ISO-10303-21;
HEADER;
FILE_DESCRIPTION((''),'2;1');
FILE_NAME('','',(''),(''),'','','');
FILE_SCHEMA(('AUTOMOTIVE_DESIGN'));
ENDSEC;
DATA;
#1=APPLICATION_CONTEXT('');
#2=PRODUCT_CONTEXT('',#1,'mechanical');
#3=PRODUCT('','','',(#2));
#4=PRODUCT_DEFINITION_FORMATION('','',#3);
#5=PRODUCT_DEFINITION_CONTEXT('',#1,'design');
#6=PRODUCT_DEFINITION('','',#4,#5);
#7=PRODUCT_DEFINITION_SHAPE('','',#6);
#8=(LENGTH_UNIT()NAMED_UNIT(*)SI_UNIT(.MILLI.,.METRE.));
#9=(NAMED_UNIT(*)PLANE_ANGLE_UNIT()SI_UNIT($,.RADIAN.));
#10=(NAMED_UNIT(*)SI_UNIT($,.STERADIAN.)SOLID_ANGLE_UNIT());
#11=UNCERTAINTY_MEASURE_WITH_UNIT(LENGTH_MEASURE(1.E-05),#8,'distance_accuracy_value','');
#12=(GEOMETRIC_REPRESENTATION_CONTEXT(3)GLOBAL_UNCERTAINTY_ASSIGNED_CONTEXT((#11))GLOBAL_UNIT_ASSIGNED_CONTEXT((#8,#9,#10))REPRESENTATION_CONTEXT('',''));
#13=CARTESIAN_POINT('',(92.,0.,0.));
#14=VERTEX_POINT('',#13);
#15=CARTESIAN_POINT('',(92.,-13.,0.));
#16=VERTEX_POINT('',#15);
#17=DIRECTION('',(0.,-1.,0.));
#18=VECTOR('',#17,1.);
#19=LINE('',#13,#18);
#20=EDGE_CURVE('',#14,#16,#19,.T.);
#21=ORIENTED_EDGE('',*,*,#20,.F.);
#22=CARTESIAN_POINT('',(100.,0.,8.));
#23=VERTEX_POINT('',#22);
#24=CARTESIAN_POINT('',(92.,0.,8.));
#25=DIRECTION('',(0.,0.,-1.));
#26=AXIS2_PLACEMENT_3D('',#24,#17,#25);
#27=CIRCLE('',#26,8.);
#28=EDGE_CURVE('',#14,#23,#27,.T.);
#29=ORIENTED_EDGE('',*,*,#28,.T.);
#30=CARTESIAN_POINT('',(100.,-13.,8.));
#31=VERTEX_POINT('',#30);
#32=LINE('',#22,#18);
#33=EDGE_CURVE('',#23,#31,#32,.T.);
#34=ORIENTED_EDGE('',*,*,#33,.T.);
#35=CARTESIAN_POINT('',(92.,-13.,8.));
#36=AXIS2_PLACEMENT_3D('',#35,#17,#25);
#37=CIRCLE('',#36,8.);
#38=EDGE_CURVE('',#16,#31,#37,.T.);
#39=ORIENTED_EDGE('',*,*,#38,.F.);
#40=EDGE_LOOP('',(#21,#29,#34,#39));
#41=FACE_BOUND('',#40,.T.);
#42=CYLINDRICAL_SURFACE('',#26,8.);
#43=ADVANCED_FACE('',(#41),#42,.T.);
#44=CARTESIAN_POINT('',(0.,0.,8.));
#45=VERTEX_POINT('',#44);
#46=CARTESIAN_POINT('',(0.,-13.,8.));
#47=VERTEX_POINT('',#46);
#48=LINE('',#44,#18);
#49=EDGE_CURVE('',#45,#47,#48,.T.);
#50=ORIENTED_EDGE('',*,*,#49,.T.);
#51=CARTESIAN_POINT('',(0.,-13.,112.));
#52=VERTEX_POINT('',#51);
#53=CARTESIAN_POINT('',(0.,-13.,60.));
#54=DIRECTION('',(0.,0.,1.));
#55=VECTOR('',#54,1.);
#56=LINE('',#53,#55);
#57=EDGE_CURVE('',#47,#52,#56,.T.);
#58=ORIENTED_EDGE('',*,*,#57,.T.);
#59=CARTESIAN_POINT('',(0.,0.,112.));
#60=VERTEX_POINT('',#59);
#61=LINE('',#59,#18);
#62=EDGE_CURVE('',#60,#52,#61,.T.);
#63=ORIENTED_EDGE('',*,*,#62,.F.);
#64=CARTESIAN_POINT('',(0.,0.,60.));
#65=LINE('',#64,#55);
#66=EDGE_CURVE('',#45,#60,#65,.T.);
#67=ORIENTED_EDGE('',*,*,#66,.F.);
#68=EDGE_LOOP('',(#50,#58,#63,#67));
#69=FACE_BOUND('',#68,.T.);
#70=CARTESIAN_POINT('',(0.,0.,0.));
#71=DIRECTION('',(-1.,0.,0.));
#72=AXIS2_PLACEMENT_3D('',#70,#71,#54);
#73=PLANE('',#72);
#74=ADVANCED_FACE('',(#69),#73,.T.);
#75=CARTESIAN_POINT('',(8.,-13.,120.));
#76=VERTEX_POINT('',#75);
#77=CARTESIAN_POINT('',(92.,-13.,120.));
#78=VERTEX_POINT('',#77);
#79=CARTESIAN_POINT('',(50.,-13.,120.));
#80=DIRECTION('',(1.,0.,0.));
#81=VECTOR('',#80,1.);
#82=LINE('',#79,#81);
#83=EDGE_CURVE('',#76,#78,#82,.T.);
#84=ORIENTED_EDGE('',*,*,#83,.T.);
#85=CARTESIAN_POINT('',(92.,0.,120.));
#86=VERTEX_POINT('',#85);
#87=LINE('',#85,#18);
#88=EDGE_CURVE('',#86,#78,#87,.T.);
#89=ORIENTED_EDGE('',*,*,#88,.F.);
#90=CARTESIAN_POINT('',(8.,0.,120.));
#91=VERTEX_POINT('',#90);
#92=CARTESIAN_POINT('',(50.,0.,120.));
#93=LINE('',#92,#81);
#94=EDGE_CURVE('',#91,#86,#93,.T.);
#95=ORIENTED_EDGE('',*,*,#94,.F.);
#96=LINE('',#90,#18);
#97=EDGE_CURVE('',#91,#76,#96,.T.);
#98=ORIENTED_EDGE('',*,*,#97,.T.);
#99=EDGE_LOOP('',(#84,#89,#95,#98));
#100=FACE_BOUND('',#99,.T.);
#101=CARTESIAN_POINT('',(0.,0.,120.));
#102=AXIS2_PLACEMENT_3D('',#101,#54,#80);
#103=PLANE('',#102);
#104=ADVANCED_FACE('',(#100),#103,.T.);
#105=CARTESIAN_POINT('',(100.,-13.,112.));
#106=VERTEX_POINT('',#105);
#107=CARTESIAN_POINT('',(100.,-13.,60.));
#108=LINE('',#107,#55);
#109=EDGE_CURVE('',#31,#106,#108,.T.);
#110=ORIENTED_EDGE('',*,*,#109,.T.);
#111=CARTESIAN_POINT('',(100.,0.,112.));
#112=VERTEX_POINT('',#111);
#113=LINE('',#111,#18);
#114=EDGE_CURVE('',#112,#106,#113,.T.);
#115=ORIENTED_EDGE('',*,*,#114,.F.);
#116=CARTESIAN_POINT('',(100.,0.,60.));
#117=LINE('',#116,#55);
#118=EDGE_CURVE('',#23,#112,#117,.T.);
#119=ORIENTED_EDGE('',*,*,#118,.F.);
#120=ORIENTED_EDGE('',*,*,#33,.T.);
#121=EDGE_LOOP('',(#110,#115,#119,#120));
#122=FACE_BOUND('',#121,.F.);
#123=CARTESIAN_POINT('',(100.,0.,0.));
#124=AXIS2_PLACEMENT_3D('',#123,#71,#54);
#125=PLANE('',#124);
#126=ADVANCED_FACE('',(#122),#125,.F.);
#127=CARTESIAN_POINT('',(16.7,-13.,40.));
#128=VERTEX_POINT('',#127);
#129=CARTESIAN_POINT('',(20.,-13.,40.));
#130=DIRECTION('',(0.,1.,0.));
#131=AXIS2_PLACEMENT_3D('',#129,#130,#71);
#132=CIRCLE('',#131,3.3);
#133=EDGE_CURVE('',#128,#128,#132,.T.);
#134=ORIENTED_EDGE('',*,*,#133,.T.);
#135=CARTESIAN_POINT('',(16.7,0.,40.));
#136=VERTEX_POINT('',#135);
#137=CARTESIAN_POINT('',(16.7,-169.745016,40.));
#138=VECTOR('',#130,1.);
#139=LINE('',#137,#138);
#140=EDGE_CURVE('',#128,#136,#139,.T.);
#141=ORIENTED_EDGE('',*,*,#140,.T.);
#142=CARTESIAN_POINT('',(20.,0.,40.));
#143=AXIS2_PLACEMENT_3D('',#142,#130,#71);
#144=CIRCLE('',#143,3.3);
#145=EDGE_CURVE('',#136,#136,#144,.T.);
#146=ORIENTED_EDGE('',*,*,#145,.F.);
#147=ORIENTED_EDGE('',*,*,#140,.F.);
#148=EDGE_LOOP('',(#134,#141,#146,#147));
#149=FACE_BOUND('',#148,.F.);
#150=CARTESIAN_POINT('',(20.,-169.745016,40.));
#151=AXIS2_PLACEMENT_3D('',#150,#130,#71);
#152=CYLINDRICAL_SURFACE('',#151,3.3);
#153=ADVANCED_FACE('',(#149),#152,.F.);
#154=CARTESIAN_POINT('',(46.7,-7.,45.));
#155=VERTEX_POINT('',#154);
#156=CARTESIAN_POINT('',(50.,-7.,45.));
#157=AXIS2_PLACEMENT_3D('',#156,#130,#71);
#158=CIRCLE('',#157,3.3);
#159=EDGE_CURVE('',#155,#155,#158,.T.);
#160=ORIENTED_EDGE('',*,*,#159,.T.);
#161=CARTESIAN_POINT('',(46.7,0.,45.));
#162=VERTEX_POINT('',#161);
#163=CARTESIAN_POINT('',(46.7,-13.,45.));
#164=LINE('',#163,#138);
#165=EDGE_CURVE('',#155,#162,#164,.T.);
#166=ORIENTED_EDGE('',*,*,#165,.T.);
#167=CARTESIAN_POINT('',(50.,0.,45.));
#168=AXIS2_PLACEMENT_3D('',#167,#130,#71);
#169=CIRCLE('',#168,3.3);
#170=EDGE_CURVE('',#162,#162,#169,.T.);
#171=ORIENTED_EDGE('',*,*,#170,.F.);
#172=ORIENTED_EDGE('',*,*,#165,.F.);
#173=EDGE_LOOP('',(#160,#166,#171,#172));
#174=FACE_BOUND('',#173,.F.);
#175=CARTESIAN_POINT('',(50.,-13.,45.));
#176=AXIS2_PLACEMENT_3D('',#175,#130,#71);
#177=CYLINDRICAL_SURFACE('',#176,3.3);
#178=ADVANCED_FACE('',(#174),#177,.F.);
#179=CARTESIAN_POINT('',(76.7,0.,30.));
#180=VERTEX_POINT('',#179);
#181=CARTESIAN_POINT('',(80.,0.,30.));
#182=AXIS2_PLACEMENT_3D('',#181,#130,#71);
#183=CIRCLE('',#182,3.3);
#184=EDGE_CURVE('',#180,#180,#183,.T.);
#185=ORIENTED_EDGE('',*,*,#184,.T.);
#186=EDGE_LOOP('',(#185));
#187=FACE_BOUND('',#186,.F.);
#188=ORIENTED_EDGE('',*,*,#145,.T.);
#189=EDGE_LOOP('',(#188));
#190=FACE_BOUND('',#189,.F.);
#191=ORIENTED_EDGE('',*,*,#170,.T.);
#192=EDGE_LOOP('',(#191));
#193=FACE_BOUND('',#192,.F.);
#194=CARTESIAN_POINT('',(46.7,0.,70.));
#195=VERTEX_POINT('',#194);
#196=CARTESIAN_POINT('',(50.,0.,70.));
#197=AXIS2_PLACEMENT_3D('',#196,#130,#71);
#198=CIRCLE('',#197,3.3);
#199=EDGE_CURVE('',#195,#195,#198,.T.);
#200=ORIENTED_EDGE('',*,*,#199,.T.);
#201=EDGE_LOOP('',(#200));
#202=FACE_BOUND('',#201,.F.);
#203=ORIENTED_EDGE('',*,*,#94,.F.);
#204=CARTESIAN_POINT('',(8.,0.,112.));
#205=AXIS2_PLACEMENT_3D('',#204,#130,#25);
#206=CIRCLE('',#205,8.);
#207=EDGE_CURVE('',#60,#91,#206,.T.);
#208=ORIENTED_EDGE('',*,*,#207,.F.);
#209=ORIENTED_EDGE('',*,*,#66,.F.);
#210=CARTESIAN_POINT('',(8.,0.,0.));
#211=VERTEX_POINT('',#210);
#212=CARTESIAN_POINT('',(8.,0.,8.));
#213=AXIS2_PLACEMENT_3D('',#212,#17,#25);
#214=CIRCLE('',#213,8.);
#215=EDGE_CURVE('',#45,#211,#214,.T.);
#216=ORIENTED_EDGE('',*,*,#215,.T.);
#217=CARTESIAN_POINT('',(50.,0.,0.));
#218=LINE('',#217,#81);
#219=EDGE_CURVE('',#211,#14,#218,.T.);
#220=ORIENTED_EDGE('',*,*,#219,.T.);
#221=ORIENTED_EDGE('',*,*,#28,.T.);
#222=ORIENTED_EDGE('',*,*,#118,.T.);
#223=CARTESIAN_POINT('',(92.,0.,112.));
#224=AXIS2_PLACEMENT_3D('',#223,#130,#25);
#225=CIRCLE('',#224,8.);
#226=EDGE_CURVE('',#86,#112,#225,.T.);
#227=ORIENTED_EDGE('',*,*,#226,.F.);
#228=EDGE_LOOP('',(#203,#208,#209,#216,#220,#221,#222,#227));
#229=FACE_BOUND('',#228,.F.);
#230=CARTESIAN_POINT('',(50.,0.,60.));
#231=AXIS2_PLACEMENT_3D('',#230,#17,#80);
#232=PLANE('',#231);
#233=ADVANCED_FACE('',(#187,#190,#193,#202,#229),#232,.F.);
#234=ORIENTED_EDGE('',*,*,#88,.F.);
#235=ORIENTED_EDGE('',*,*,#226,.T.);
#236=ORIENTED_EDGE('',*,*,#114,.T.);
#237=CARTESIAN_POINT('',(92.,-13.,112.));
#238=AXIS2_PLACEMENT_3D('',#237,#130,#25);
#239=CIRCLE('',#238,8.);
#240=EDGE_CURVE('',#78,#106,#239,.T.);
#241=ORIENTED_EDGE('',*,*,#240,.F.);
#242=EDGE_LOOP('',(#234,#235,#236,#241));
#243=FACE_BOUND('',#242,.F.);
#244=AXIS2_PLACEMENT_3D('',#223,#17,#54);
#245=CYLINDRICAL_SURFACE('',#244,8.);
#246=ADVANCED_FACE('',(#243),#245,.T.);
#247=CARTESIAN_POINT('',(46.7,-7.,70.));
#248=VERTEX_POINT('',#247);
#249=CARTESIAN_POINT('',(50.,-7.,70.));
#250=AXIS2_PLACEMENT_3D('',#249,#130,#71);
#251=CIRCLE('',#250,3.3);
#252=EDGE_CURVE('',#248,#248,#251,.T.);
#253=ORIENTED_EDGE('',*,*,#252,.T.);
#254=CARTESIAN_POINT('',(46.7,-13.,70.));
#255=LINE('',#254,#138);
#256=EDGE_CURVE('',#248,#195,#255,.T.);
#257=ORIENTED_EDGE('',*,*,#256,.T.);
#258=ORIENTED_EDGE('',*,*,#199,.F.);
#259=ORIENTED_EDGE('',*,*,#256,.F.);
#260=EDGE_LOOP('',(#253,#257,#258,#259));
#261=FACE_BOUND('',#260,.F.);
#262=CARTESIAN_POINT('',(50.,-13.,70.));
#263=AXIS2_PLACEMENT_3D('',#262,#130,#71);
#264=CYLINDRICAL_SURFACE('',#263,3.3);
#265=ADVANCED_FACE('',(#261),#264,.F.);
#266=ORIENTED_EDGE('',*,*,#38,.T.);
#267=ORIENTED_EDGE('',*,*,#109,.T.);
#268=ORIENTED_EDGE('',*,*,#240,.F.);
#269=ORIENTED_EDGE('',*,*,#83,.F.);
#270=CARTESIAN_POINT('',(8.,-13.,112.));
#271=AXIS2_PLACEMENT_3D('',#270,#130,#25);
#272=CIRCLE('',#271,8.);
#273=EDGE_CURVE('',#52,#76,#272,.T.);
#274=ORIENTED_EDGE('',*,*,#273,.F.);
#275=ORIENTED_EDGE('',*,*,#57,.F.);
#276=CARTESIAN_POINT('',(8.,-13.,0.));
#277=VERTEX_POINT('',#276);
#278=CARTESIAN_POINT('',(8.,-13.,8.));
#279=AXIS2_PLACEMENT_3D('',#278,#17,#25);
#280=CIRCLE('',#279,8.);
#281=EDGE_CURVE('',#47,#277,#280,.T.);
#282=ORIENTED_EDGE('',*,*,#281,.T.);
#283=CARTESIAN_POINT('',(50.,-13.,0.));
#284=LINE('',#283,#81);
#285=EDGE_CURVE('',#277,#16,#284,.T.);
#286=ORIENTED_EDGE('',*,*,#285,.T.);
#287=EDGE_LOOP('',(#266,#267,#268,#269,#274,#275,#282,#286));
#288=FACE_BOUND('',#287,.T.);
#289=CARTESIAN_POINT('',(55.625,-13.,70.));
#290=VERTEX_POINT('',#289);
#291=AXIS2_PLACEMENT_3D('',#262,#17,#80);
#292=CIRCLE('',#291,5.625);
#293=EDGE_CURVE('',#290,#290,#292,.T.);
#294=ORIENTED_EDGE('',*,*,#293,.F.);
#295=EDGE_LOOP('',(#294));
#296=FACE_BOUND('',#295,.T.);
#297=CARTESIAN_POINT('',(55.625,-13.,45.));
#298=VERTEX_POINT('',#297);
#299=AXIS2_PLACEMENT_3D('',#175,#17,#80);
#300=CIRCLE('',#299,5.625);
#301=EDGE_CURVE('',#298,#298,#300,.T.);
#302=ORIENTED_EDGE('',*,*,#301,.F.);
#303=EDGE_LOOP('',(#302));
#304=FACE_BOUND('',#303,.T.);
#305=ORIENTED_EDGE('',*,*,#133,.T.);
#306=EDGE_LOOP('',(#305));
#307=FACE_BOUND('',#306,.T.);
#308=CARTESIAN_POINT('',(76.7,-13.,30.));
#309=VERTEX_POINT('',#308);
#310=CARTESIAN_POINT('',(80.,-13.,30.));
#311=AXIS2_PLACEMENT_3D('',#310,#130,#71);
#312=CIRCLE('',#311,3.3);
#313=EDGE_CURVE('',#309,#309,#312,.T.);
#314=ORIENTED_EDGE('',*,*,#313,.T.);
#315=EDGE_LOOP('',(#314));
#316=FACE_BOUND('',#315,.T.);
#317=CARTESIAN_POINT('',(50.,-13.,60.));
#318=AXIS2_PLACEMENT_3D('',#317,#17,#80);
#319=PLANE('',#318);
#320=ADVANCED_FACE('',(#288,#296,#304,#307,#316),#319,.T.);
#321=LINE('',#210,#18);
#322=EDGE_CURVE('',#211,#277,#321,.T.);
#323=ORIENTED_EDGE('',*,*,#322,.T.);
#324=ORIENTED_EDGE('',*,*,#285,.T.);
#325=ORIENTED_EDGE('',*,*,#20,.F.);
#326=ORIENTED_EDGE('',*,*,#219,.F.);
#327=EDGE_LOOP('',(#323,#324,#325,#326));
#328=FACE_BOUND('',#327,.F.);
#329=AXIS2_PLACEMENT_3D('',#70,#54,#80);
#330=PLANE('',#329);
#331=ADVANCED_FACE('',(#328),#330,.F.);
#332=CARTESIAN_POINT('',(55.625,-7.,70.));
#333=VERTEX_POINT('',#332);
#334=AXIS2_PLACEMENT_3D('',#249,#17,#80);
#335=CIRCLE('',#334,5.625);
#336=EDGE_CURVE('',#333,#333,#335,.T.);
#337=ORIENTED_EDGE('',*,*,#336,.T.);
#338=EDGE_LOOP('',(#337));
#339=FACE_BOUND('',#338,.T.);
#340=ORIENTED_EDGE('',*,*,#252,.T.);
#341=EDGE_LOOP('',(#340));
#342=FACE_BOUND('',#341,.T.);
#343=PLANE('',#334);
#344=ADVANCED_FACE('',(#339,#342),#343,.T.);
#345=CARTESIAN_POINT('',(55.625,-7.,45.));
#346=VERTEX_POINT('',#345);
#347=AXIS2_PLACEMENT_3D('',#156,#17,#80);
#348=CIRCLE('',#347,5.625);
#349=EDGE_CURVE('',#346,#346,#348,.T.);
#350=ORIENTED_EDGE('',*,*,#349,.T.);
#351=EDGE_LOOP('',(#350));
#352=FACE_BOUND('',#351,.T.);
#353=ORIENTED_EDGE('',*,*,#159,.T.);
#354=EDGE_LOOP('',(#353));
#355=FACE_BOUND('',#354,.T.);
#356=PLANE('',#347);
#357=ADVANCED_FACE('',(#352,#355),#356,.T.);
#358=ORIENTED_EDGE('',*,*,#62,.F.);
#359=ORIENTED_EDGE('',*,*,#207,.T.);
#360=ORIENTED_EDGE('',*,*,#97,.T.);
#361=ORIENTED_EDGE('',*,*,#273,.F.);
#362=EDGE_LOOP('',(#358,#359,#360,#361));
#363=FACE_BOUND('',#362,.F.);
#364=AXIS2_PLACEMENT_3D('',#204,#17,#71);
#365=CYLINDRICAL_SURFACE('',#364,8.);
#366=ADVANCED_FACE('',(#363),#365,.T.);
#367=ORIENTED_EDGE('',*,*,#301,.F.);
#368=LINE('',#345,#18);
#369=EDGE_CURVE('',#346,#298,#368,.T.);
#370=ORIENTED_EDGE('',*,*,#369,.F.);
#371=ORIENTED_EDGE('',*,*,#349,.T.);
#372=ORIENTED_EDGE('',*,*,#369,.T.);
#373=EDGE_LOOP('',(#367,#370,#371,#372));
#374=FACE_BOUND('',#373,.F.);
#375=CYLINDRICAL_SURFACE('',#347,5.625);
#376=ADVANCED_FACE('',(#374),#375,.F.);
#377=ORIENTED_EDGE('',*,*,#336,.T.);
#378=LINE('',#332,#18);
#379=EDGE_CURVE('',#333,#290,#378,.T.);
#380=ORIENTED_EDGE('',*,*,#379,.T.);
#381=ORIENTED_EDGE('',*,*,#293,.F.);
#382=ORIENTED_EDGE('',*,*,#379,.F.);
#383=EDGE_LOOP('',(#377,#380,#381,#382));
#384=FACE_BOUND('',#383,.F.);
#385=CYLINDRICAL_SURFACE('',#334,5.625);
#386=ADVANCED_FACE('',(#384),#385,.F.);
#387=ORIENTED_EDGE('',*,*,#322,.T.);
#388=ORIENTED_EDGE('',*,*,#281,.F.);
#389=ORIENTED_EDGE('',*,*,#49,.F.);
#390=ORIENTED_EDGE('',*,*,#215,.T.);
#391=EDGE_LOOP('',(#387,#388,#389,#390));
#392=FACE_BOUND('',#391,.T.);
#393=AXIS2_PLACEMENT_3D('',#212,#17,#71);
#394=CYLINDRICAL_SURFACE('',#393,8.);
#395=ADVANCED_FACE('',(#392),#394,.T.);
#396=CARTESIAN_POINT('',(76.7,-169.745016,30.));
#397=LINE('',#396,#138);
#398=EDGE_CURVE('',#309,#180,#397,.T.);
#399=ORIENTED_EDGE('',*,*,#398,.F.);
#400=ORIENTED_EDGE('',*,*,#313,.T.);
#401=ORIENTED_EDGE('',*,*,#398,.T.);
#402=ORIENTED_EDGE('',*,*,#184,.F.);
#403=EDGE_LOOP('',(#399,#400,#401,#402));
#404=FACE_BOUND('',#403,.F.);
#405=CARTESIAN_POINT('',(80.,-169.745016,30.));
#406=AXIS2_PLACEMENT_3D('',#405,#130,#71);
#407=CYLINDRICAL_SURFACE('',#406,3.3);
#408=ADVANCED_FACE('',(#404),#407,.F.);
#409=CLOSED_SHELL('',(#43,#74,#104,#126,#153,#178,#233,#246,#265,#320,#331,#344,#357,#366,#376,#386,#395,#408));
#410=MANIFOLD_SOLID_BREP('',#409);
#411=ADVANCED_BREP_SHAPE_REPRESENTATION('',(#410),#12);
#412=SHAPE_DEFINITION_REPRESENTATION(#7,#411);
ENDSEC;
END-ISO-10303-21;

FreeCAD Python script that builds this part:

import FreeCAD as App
import Part
import Sketcher
from FreeCAD import Vector
Q = App.Units.Quantity


def edges_at(feature, points):
    """Names of the edges that pass closest to the given points."""
    edges = feature.Shape.Edges
    near = lambda p: min(range(len(edges)), key=lambda i: edges[i].distToShape(Part.Vertex(*p))[0])
    return sorted({f"Edge{near(p) + 1}" for p in points})


def add_polygon(sketch, points):
    """Adds a closed chain of lines whose ends are joined by coincident constraints."""
    first, n = sketch.GeometryCount, len(points)
    for a, b in zip(points, points[1:] + points[:1]):
        sketch.addGeometry(Part.LineSegment(App.Vector(*a, 0), App.Vector(*b, 0)), False)
    for i in range(n):
        sketch.addConstraint(Sketcher.Constraint("Coincident", first + i, 2, first + (i + 1) % n, 1))

doc = App.newDocument("Part")
body = doc.addObject("PartDesign::Body", "Body")

# Sketch on XZ plane
sketch1 = body.newObject("Sketcher::SketchObject", "Sketch")
sketch1.AttachmentSupport = (doc.getObject("XZ_Plane"), [""])
sketch1.MapMode = "FlatFace"
add_polygon(sketch1, [(0, 120), (0, 0), (100, 0), (100, 120)])  # lines 0-3
sketch1.addConstraint([
    Sketcher.Constraint("Vertical", 0),
    Sketcher.Constraint("Horizontal", 1),
    Sketcher.Constraint("Vertical", 2),
    Sketcher.Constraint("Horizontal", 3),
    Sketcher.Constraint("Coincident", 0, 2, -1, 1),
    Sketcher.Constraint("DistanceX", 1, 1, 1, 2, Q("100 mm")),
    Sketcher.Constraint("DistanceY", 0, 2, 0, 1, Q("120 mm")),
])
pad1 = body.newObject("PartDesign::Pad", "Pad")
pad1.Profile = sketch1
pad1.Length = 13

# Sketch on XZ plane
sketch2 = body.newObject("Sketcher::SketchObject", "Sketch001")
sketch2.AttachmentSupport = (doc.getObject("XZ_Plane"), [""])
sketch2.MapMode = "FlatFace"
sketch2.AttachmentOffset = App.Placement(Vector(0, 0, 13), App.Rotation())
sketch2.addGeometry([
    Part.Circle(Vector(80, 30, 0), Vector(0, 0, 1), 3.3),
    Part.Circle(Vector(20, 40, 0), Vector(0, 0, 1), 3.3),
], False)
sketch2.addConstraint([
    Sketcher.Constraint("Equal", 0, 1),
    Sketcher.Constraint("Diameter", 0, Q("6.6 mm")),
    Sketcher.Constraint("DistanceX", -1, 1, 0, 3, Q("80 mm")),
    Sketcher.Constraint("DistanceY", -1, 1, 0, 3, Q("30 mm")),
    Sketcher.Constraint("DistanceX", -1, 1, 1, 3, Q("20 mm")),
    Sketcher.Constraint("DistanceY", -1, 1, 1, 3, Q("40 mm")),
])
doc.recompute()
hole = body.newObject("PartDesign::Hole", "Hole")
hole.Profile = sketch2
hole.ThreadType = "None"
hole.Diameter = 6.6
hole.DepthType = "ThroughAll"

# Sketch on XZ plane
sketch3 = body.newObject("Sketcher::SketchObject", "Sketch002")
sketch3.AttachmentSupport = (doc.getObject("XZ_Plane"), [""])
sketch3.MapMode = "FlatFace"
sketch3.AttachmentOffset = App.Placement(Vector(0, 0, 13), App.Rotation())
sketch3.addGeometry([
    Part.Circle(Vector(50, 70, 0), Vector(0, 0, 1), 3.3),
    Part.Circle(Vector(50, 45, 0), Vector(0, 0, 1), 3.3),
], False)
sketch3.addConstraint([
    Sketcher.Constraint("Equal", 0, 1),
    Sketcher.Constraint("Vertical", 0, 3, 1, 3),
    Sketcher.Constraint("Diameter", 0, Q("6.6 mm")),
    Sketcher.Constraint("DistanceX", -1, 1, 0, 3, Q("50 mm")),
    Sketcher.Constraint("DistanceY", -1, 1, 0, 3, Q("70 mm")),
    Sketcher.Constraint("DistanceY", -1, 1, 1, 3, Q("45 mm")),
])
doc.recompute()
hole2 = body.newObject("PartDesign::Hole", "Hole001")
hole2.Profile = sketch3
hole2.ThreadType = "None"
hole2.Diameter = 6.6
hole2.DepthType = "ThroughAll"
hole2.HoleCutType = "Counterbore"
hole2.HoleCutDiameter = 11.25
hole2.HoleCutDepth = 6
doc.recompute()

fillet = body.newObject("PartDesign::Fillet", "Fillet")
fillet.Base = (hole2, edges_at(hole2, [
    (100, -6.5, 120),
    (100, -6.5, 0),
    (0, -6.5, 120),
    (0, -6.5, 0),
]))
fillet.Radius = 8

doc.recompute()
